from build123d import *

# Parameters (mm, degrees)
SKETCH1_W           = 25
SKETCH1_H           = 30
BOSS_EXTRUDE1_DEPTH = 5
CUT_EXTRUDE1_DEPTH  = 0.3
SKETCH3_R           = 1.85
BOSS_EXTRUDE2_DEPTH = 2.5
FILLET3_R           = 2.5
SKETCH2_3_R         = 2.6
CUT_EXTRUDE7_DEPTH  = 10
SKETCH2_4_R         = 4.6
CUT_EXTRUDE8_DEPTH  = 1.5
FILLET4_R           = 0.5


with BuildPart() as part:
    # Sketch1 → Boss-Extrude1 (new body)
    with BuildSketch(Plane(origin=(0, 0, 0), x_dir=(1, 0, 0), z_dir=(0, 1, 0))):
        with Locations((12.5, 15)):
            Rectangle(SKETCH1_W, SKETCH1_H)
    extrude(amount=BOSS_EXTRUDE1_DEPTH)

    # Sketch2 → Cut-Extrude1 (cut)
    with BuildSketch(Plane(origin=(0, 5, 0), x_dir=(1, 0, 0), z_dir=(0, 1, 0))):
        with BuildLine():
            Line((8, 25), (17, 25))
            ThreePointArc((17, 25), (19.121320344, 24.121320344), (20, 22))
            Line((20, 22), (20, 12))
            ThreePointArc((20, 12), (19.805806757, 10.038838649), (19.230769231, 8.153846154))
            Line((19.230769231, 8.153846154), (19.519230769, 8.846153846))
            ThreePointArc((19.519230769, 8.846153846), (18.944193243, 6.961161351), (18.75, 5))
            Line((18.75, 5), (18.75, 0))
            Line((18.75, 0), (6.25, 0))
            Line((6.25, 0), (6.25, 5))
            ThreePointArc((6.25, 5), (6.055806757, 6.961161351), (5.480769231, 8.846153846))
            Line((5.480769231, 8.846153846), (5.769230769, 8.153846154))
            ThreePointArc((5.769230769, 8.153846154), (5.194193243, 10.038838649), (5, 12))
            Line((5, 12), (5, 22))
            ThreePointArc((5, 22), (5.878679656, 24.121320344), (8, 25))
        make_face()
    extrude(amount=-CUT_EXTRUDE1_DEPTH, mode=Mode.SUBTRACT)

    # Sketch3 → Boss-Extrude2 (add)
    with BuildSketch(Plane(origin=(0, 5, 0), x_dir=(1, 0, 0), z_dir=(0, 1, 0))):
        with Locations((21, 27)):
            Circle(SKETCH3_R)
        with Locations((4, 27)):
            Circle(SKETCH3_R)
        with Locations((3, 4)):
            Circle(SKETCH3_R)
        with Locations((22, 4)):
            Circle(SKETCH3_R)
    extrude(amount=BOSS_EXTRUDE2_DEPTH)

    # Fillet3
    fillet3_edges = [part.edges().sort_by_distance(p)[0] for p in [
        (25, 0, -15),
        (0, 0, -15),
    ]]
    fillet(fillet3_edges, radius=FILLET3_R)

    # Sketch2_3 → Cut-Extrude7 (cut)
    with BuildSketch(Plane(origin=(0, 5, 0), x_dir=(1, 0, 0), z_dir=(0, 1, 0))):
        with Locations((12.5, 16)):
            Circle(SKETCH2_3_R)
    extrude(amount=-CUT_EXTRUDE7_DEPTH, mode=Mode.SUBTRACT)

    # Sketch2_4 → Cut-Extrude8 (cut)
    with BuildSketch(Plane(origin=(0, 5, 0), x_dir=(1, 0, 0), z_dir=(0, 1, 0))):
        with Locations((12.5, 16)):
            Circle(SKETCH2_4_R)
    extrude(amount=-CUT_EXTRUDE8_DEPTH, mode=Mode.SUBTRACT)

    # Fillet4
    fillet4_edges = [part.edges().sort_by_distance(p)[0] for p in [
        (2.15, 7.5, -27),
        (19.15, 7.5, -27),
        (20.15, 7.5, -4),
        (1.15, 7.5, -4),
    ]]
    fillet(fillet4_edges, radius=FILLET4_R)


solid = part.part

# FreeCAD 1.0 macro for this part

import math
import FreeCAD as App
import Part
import Sketcher
from FreeCAD import Vector
Q = App.Units.Quantity


def edges_at(feature, points):
    """Names of the edges that pass closest to the given points."""
    edges = feature.Shape.Edges
    near = lambda p: min(range(len(edges)), key=lambda i: edges[i].distToShape(Part.Vertex(*p))[0])
    return sorted({f"Edge{near(p) + 1}" for p in points})

doc = App.newDocument("Part")
body = doc.addObject("PartDesign::Body", "Body")

# Sketch on XZ plane
sketch1 = doc.addObject("Sketcher::SketchObject", "Sketch")
body.addObject(sketch1)
sketch1.AttachmentSupport = (doc.XZ_Plane, [""])
sketch1.MapMode = "FlatFace"
sketch1.addGeometry(Part.LineSegment(Vector(0, -30, 0), Vector(0, 0, 0)), False)
sketch1.addGeometry(Part.LineSegment(Vector(0, 0, 0), Vector(25, 0, 0)), False)
sketch1.addGeometry(Part.LineSegment(Vector(25, 0, 0), Vector(25, -30, 0)), False)
sketch1.addGeometry(Part.LineSegment(Vector(25, -30, 0), Vector(0, -30, 0)), False)
sketch1.addConstraint(Sketcher.Constraint("Coincident", 0, 2, 1, 1))
sketch1.addConstraint(Sketcher.Constraint("Coincident", 1, 2, 2, 1))
sketch1.addConstraint(Sketcher.Constraint("Coincident", 2, 2, 3, 1))
sketch1.addConstraint(Sketcher.Constraint("Coincident", 3, 2, 0, 1))
sketch1.addConstraint(Sketcher.Constraint("Vertical", 0))
sketch1.addConstraint(Sketcher.Constraint("Horizontal", 1))
sketch1.addConstraint(Sketcher.Constraint("Vertical", 2))
sketch1.addConstraint(Sketcher.Constraint("Horizontal", 3))
sketch1.addConstraint(Sketcher.Constraint("Coincident", 0, 2, -1, 1))
sketch1.addConstraint(Sketcher.Constraint("DistanceX", 1, 1, 1, 2, Q("25 mm")))
sketch1.addConstraint(Sketcher.Constraint("DistanceY", 0, 1, 0, 2, Q("30 mm")))
pad1 = doc.addObject("PartDesign::Pad", "Pad")
body.addObject(pad1)
pad1.Profile = sketch1
pad1.Length = 5
pad1.Reversed = True

# Sketch on XZ plane
sketch2 = doc.addObject("Sketcher::SketchObject", "Sketch001")
body.addObject(sketch2)
sketch2.AttachmentSupport = (doc.XZ_Plane, [""])
sketch2.MapMode = "FlatFace"
sketch2.AttachmentOffset = App.Placement(Vector(0, 0, -5), App.Rotation())
sketch2.addGeometry(Part.LineSegment(Vector(17, -25, 0), Vector(8, -25, 0)), False)
sketch2.addGeometry(Part.ArcOfCircle(Part.Circle(Vector(8, -22, 0), Vector(0, 0, 1), 3), math.radians(180), math.radians(270)), False)
sketch2.addGeometry(Part.LineSegment(Vector(5, -22, 0), Vector(5, -12, 0)), False)
sketch2.addGeometry(Part.ArcOfCircle(Part.Circle(Vector(15, -12, 0), Vector(0, 0, 1), 10), math.radians(157), math.radians(180)), False)
sketch2.addGeometry(Part.LineSegment(Vector(5.8, -8.2, 0), Vector(5.5, -8.8, 0)), False)
sketch2.addGeometry(Part.ArcOfCircle(Part.Circle(Vector(-3.8, -5, 0), Vector(0, 0, 1), 10), math.radians(-23), math.radians(0)), False)
sketch2.addGeometry(Part.LineSegment(Vector(6.2, -5, 0), Vector(6.2, 0, 0)), False)
sketch2.addGeometry(Part.LineSegment(Vector(6.2, 0, 0), Vector(18.8, 0, 0)), False)
sketch2.addGeometry(Part.LineSegment(Vector(18.8, 0, 0), Vector(18.8, -5, 0)), False)
sketch2.addGeometry(Part.ArcOfCircle(Part.Circle(Vector(28.8, -5, 0), Vector(0, 0, 1), 10), math.radians(180), math.radians(203)), False)
sketch2.addGeometry(Part.LineSegment(Vector(19.5, -8.8, 0), Vector(19.2, -8.2, 0)), False)
sketch2.addGeometry(Part.ArcOfCircle(Part.Circle(Vector(10, -12, 0), Vector(0, 0, 1), 10), math.radians(0), math.radians(23)), False)
sketch2.addGeometry(Part.LineSegment(Vector(20, -12, 0), Vector(20, -22, 0)), False)
sketch2.addGeometry(Part.ArcOfCircle(Part.Circle(Vector(17, -22, 0), Vector(0, 0, 1), 3), math.radians(-90), math.radians(0)), False)
sketch2.addConstraint(Sketcher.Constraint("Tangent", 0, 2, 1, 2))
sketch2.addConstraint(Sketcher.Constraint("Tangent", 1, 1, 2, 1))
sketch2.addConstraint(Sketcher.Constraint("Tangent", 2, 2, 3, 2))
sketch2.addConstraint(Sketcher.Constraint("Tangent", 3, 1, 4, 1))
sketch2.addConstraint(Sketcher.Constraint("Tangent", 4, 2, 5, 1))
sketch2.addConstraint(Sketcher.Constraint("Tangent", 5, 2, 6, 1))
sketch2.addConstraint(Sketcher.Constraint("Coincident", 6, 2, 7, 1))
sketch2.addConstraint(Sketcher.Constraint("Coincident", 7, 2, 8, 1))
sketch2.addConstraint(Sketcher.Constraint("Tangent", 8, 2, 9, 1))
sketch2.addConstraint(Sketcher.Constraint("Tangent", 9, 2, 10, 1))
sketch2.addConstraint(Sketcher.Constraint("Tangent", 10, 2, 11, 2))
sketch2.addConstraint(Sketcher.Constraint("Tangent", 11, 1, 12, 1))
sketch2.addConstraint(Sketcher.Constraint("Tangent", 12, 2, 13, 2))
sketch2.addConstraint(Sketcher.Constraint("Tangent", 13, 1, 0, 1))
sketch2.addConstraint(Sketcher.Constraint("Horizontal", 0))
sketch2.addConstraint(Sketcher.Constraint("Vertical", 2))
sketch2.addConstraint(Sketcher.Constraint("Vertical", 6))
sketch2.addConstraint(Sketcher.Constraint("Horizontal", 7))
sketch2.addConstraint(Sketcher.Constraint("Vertical", 8))
sketch2.addConstraint(Sketcher.Constraint("Vertical", 12))
sketch2.addConstraint(Sketcher.Constraint("Equal", 3, 5))
sketch2.addConstraint(Sketcher.Constraint("Equal", 5, 9))
sketch2.addConstraint(Sketcher.Constraint("Equal", 9, 11))
sketch2.addConstraint(Sketcher.Constraint("Equal", 1, 13))
sketch2.addConstraint(Sketcher.Constraint("PointOnObject", 6, 2, -1))
sketch2.addConstraint(Sketcher.Constraint("Horizontal", 5, 3, 9, 3))
sketch2.addConstraint(Sketcher.Constraint("Horizontal", 3, 3, 11, 3))
sketch2.addConstraint(Sketcher.Constraint("Horizontal", 4, 2, 9, 2))
sketch2.addConstraint(Sketcher.Constraint("Radius", 1, Q("3 mm")))
sketch2.addConstraint(Sketcher.Constraint("Radius", 3, Q("10 mm")))
sketch2.addConstraint(Sketcher.Constraint("DistanceX", 0, 2, 0, 1, Q("9 mm")))
sketch2.addConstraint(Sketcher.Constraint("DistanceY", 2, 1, 2, 2, Q("10 mm")))
sketch2.addConstraint(Sketcher.Constraint("DistanceY", 6, 1, 6, 2, Q("5 mm")))
sketch2.addConstraint(Sketcher.Constraint("DistanceX", 7, 1, 7, 2, Q("12.5 mm")))
sketch2.addConstraint(Sketcher.Constraint("DistanceX", -1, 1, 1, 3, Q("8 mm")))
sketch2.addConstraint(Sketcher.Constraint("DistanceY", 1, 3, -1, 1, Q("22 mm")))
pocket1 = doc.addObject("PartDesign::Pocket", "Pocket")
body.addObject(pocket1)
pocket1.Profile = sketch2
pocket1.Length = 0.3
pocket1.Reversed = True

# Sketch on XZ plane
sketch3 = doc.addObject("Sketcher::SketchObject", "Sketch002")
body.addObject(sketch3)
sketch3.AttachmentSupport = (doc.XZ_Plane, [""])
sketch3.MapMode = "FlatFace"
sketch3.AttachmentOffset = App.Placement(Vector(0, 0, -5), App.Rotation())
sketch3.addGeometry(Part.Circle(Vector(21, -27, 0), Vector(0, 0, 1), 1.9), False)
sketch3.addGeometry(Part.Circle(Vector(4, -27, 0), Vector(0, 0, 1), 1.9), False)
sketch3.addGeometry(Part.Circle(Vector(3, -4, 0), Vector(0, 0, 1), 1.9), False)
sketch3.addGeometry(Part.Circle(Vector(22, -4, 0), Vector(0, 0, 1), 1.9), False)
sketch3.addConstraint(Sketcher.Constraint("Equal", 0, 1))
sketch3.addConstraint(Sketcher.Constraint("Equal", 1, 2))
sketch3.addConstraint(Sketcher.Constraint("Equal", 2, 3))
sketch3.addConstraint(Sketcher.Constraint("Horizontal", 0, 3, 1, 3))
sketch3.addConstraint(Sketcher.Constraint("Horizontal", 2, 3, 3, 3))
sketch3.addConstraint(Sketcher.Constraint("Diameter", 0, Q("3.7 mm")))
sketch3.addConstraint(Sketcher.Constraint("DistanceX", -1, 1, 0, 3, Q("21 mm")))
sketch3.addConstraint(Sketcher.Constraint("DistanceY", 0, 3, -1, 1, Q("27 mm")))
sketch3.addConstraint(Sketcher.Constraint("DistanceX", -1, 1, 1, 3, Q("4 mm")))
sketch3.addConstraint(Sketcher.Constraint("DistanceX", -1, 1, 2, 3, Q("3 mm")))
sketch3.addConstraint(Sketcher.Constraint("DistanceY", 2, 3, -1, 1, Q("4 mm")))
sketch3.addConstraint(Sketcher.Constraint("DistanceX", -1, 1, 3, 3, Q("22 mm")))
pad2 = doc.addObject("PartDesign::Pad", "Pad001")
body.addObject(pad2)
pad2.Profile = sketch3
pad2.Length = 2.5
pad2.Reversed = True
doc.recompute()

fillet = doc.addObject("PartDesign::Fillet", "Fillet")
body.addObject(fillet)
fillet.Base = (pad2, edges_at(pad2, [(25, 0, -15), (0, 0, -15)]))
fillet.Radius = 2.5

# Sketch on XZ plane
sketch4 = doc.addObject("Sketcher::SketchObject", "Sketch003")
body.addObject(sketch4)
sketch4.AttachmentSupport = (doc.XZ_Plane, [""])
sketch4.MapMode = "FlatFace"
sketch4.AttachmentOffset = App.Placement(Vector(0, 0, -5), App.Rotation())
sketch4.addGeometry(Part.Circle(Vector(12.5, -16, 0), Vector(0, 0, 1), 2.6), False)
sketch4.addConstraint(Sketcher.Constraint("Diameter", 0, Q("5.2 mm")))
sketch4.addConstraint(Sketcher.Constraint("DistanceY", 0, 3, -1, 1, Q("16 mm")))
sketch4.addConstraint(Sketcher.Constraint("DistanceX", -1, 1, 0, 3, Q("12.5 mm")))
pocket2 = doc.addObject("PartDesign::Pocket", "Pocket001")
body.addObject(pocket2)
pocket2.Profile = sketch4
pocket2.Length = 10
pocket2.Reversed = True

# Sketch on XZ plane
sketch5 = doc.addObject("Sketcher::SketchObject", "Sketch004")
body.addObject(sketch5)
sketch5.AttachmentSupport = (doc.XZ_Plane, [""])
sketch5.MapMode = "FlatFace"
sketch5.AttachmentOffset = App.Placement(Vector(0, 0, -5), App.Rotation())
sketch5.addGeometry(Part.Circle(Vector(12.5, -16, 0), Vector(0, 0, 1), 4.6), False)
sketch5.addConstraint(Sketcher.Constraint("Diameter", 0, Q("9.2 mm")))
sketch5.addConstraint(Sketcher.Constraint("DistanceY", 0, 3, -1, 1, Q("16 mm")))
sketch5.addConstraint(Sketcher.Constraint("DistanceX", -1, 1, 0, 3, Q("12.5 mm")))
pocket3 = doc.addObject("PartDesign::Pocket", "Pocket002")
body.addObject(pocket3)
pocket3.Profile = sketch5
pocket3.Length = 1.5
pocket3.Reversed = True
doc.recompute()

fillet2 = doc.addObject("PartDesign::Fillet", "Fillet001")
body.addObject(fillet2)
fillet2.Base = (pocket3, edges_at(pocket3, [
    (2.15, 7.5, -27),
    (19.15, 7.5, -27),
    (20.15, 7.5, -4),
    (1.15, 7.5, -4),
]))
fillet2.Radius = 0.5

doc.recompute()
